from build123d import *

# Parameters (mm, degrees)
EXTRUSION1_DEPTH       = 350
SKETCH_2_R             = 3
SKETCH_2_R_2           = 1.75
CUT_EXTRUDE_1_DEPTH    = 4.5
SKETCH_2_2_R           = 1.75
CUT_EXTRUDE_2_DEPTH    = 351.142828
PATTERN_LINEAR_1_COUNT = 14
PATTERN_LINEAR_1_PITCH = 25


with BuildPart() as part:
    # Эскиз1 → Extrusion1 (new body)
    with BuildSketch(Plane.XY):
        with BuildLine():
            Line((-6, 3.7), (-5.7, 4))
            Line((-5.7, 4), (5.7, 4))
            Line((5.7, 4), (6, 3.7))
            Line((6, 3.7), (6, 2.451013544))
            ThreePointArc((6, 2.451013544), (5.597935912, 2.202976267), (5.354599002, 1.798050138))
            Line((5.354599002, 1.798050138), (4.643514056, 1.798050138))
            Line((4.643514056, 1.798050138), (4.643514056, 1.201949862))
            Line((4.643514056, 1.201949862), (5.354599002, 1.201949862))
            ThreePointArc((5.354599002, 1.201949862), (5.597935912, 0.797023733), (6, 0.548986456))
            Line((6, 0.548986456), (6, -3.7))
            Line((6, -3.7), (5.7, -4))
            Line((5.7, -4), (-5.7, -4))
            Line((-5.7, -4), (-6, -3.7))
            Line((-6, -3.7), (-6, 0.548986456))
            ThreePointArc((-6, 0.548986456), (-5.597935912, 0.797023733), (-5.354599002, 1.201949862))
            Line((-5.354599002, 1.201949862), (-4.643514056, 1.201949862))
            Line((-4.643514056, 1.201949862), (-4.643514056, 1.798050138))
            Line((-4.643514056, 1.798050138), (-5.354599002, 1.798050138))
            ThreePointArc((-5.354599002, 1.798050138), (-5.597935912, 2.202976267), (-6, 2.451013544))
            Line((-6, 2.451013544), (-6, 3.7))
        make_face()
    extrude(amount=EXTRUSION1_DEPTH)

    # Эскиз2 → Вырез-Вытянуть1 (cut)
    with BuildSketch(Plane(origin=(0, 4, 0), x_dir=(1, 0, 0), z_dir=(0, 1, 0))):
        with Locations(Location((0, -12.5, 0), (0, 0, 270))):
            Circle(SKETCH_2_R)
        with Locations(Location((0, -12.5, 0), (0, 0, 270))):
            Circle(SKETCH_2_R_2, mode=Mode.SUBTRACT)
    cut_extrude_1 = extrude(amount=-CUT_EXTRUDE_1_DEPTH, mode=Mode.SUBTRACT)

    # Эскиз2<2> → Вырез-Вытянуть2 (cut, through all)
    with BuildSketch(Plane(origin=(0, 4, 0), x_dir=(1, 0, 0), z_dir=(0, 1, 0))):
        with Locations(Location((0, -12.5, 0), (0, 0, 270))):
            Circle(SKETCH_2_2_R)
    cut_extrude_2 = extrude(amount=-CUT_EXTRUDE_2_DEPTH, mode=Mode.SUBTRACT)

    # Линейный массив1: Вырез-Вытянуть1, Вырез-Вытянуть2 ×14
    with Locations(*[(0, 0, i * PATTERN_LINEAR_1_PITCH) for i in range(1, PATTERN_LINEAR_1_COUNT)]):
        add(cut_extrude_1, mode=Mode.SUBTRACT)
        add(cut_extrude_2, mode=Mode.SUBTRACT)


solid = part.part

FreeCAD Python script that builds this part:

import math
import FreeCAD as App
import Part
import Sketcher

V = App.Vector
Q = App.Units.Quantity

doc = App.newDocument("Part")
body = doc.addObject("PartDesign::Body", "Body")

# Sketch on XY plane
sketch1 = body.newObject("Sketcher::SketchObject", "Sketch")
sketch1.AttachmentSupport = (doc.getObject("XY_Plane"), [""])
sketch1.MapMode = "FlatFace"
sketch1.addGeometry([
    Part.LineSegment(V(-5.7, 4, 0), V(-6, 3.7, 0)),  # 0
    Part.LineSegment(V(-6, 3.7, 0), V(-6, 2.451014, 0)),  # 1
    Part.ArcOfCircle(Part.Circle(V(-6.309149, 1.5, 0), V(0, 0, 1), 1), math.radians(17.340528), math.radians(71.992034)),  # 2
    Part.LineSegment(V(-5.354599, 1.79805, 0), V(-4.643514, 1.79805, 0)),  # 3
    Part.LineSegment(V(-4.643514, 1.79805, 0), V(-4.643514, 1.20195, 0)),  # 4
    Part.LineSegment(V(-4.643514, 1.20195, 0), V(-5.354599, 1.20195, 0)),  # 5
    Part.ArcOfCircle(Part.Circle(V(-6.309149, 1.5, 0), V(0, 0, 1), 1), math.radians(-71.992034), math.radians(-17.340528)),  # 6
    Part.LineSegment(V(-6, 0.548986, 0), V(-6, -3.7, 0)),  # 7
    Part.LineSegment(V(-6, -3.7, 0), V(-5.7, -4, 0)),  # 8
    Part.LineSegment(V(-5.7, -4, 0), V(5.7, -4, 0)),  # 9
    Part.LineSegment(V(5.7, -4, 0), V(6, -3.7, 0)),  # 10
    Part.LineSegment(V(6, -3.7, 0), V(6, 0.548986, 0)),  # 11
    Part.ArcOfCircle(Part.Circle(V(6.309149, 1.5, 0), V(0, 0, 1), 1), math.radians(-162.659472), math.radians(-108.007966)),  # 12
    Part.LineSegment(V(5.354599, 1.20195, 0), V(4.643514, 1.20195, 0)),  # 13
    Part.LineSegment(V(4.643514, 1.20195, 0), V(4.643514, 1.79805, 0)),  # 14
    Part.LineSegment(V(4.643514, 1.79805, 0), V(5.354599, 1.79805, 0)),  # 15
    Part.ArcOfCircle(Part.Circle(V(6.309149, 1.5, 0), V(0, 0, 1), 1), math.radians(108.007966), math.radians(162.659472)),  # 16
    Part.LineSegment(V(6, 2.451014, 0), V(6, 3.7, 0)),  # 17
    Part.LineSegment(V(6, 3.7, 0), V(5.7, 4, 0)),  # 18
    Part.LineSegment(V(5.7, 4, 0), V(-5.7, 4, 0)),  # 19
], False)
sketch1.addConstraint([
    Sketcher.Constraint("Coincident", 0, 2, 1, 1),
    Sketcher.Constraint("Coincident", 1, 2, 2, 2),
    Sketcher.Constraint("Coincident", 2, 1, 3, 1),
    Sketcher.Constraint("Coincident", 3, 2, 4, 1),
    Sketcher.Constraint("Coincident", 4, 2, 5, 1),
    Sketcher.Constraint("Coincident", 5, 2, 6, 2),
    Sketcher.Constraint("Coincident", 6, 1, 7, 1),
    Sketcher.Constraint("Coincident", 7, 2, 8, 1),
    Sketcher.Constraint("Coincident", 8, 2, 9, 1),
    Sketcher.Constraint("Coincident", 9, 2, 10, 1),
    Sketcher.Constraint("Coincident", 10, 2, 11, 1),
    Sketcher.Constraint("Coincident", 11, 2, 12, 2),
    Sketcher.Constraint("Coincident", 12, 1, 13, 1),
    Sketcher.Constraint("Coincident", 13, 2, 14, 1),
    Sketcher.Constraint("Coincident", 14, 2, 15, 1),
    Sketcher.Constraint("Coincident", 15, 2, 16, 2),
    Sketcher.Constraint("Coincident", 16, 1, 17, 1),
    Sketcher.Constraint("Coincident", 17, 2, 18, 1),
    Sketcher.Constraint("Coincident", 18, 2, 19, 1),
    Sketcher.Constraint("Coincident", 19, 2, 0, 1),
    Sketcher.Constraint("Vertical", 1),
    Sketcher.Constraint("Horizontal", 3),
    Sketcher.Constraint("Vertical", 4),
    Sketcher.Constraint("Horizontal", 5),
    Sketcher.Constraint("Vertical", 7),
    Sketcher.Constraint("Horizontal", 9),
    Sketcher.Constraint("Vertical", 11),
    Sketcher.Constraint("Horizontal", 13),
    Sketcher.Constraint("Vertical", 14),
    Sketcher.Constraint("Horizontal", 15),
    Sketcher.Constraint("Vertical", 17),
    Sketcher.Constraint("Horizontal", 19),
    Sketcher.Constraint("Coincident", 6, 3, 2, 3),
    Sketcher.Constraint("Coincident", 16, 3, 12, 3),
    Sketcher.Constraint("Equal", 2, 6),
    Sketcher.Constraint("Equal", 6, 12),
    Sketcher.Constraint("Equal", 12, 16),
    Sketcher.Constraint("Symmetric", 0, 2, 10, 2, -1, 1),
    Sketcher.Constraint("Symmetric", 7, 2, 17, 2, -1, 1),
    Sketcher.Constraint("Symmetric", 8, 2, 18, 2, -1, 1),
    Sketcher.Constraint("Symmetric", 2, 3, 12, 3, -2),
    Sketcher.Constraint("Symmetric", 7, 2, 10, 2, -2),
    Sketcher.Constraint("Symmetric", 4, 2, 13, 2, -2),
    Sketcher.Constraint("Perpendicular", 0, 8),
    Sketcher.Constraint("Perpendicular", 8, 10),
    Sketcher.Constraint("Horizontal", 3, 2, 14, 2),
    Sketcher.Constraint("Vertical", 2, 1, 5, 2),
    Sketcher.Constraint("Vertical", 9, 2, 18, 2),
    Sketcher.Constraint("Radius", 2, Q("1 mm")),
    Sketcher.Constraint("DistanceX", 9, 1, 9, 2, Q("11.4 mm")),
    Sketcher.Constraint("DistanceX", 0, 2, -1, 1, Q("6 mm")),
    Sketcher.Constraint("DistanceY", 8, 2, -1, 1, Q("4 mm")),
    Sketcher.Constraint("DistanceY", -1, 1, 2, 3, Q("1.5 mm")),
    Sketcher.Constraint("DistanceY", 4, 2, 4, 1, Q("0.5961 mm")),
    Sketcher.Constraint("DistanceX", 2, 1, -1, 1, Q("5.354599 mm")),
    Sketcher.Constraint("DistanceX", 3, 1, 3, 2, Q("0.711085 mm")),
])
pad1 = body.newObject("PartDesign::Pad", "Pad")
pad1.Profile = sketch1
pad1.Length = 350

# Sketch on XZ plane
sketch2 = body.newObject("Sketcher::SketchObject", "Sketch001")
sketch2.AttachmentSupport = (doc.getObject("XZ_Plane"), [""])
sketch2.MapMode = "FlatFace"
sketch2.AttachmentOffset = App.Placement(V(0, 0, -4), App.Rotation())
sketch2.addGeometry([
    Part.Circle(V(0, 12.5, 0), V(0, 0, 1), 3),
    Part.Circle(V(0, 12.5, 0), V(0, 0, 1), 1.75),
], False)
sketch2.addConstraint([
    Sketcher.Constraint("Coincident", 1, 3, 0, 3),
    Sketcher.Constraint("PointOnObject", 0, 3, -2),
    Sketcher.Constraint("Diameter", 0, Q("6 mm")),
    Sketcher.Constraint("Diameter", 1, Q("3.5 mm")),
    Sketcher.Constraint("DistanceY", -1, 1, 0, 3, Q("12.5 mm")),
])
pocket1 = body.newObject("PartDesign::Pocket", "Pocket")
pocket1.Profile = sketch2
pocket1.Length = 4.5
pocket1.Reversed = True

# Sketch on XZ plane
sketch3 = body.newObject("Sketcher::SketchObject", "Sketch002")
sketch3.AttachmentSupport = (doc.getObject("XZ_Plane"), [""])
sketch3.MapMode = "FlatFace"
sketch3.AttachmentOffset = App.Placement(V(0, 0, -4), App.Rotation())
sketch3.addGeometry(Part.Circle(V(0, 12.5, 0), V(0, 0, 1), 1.75), False)
sketch3.addConstraint([
    Sketcher.Constraint("PointOnObject", 0, 3, -2),
    Sketcher.Constraint("Diameter", 0, Q("3.5 mm")),
    Sketcher.Constraint("DistanceY", -1, 1, 0, 3, Q("12.5 mm")),
])
pocket2 = body.newObject("PartDesign::Pocket", "Pocket001")
pocket2.Profile = sketch3
pocket2.Type = "ThroughAll"
pocket2.Reversed = True
doc.recompute()

linearpattern = body.newObject("PartDesign::LinearPattern", "LinearPattern")
linearpattern.Originals = [pocket1, pocket2]
linearpattern.Direction = (doc.getObject("Z_Axis"), [""])
linearpattern.Mode = "offset"
linearpattern.Offset = 25
linearpattern.Occurrences = 14
body.Tip = linearpattern

doc.recompute()
